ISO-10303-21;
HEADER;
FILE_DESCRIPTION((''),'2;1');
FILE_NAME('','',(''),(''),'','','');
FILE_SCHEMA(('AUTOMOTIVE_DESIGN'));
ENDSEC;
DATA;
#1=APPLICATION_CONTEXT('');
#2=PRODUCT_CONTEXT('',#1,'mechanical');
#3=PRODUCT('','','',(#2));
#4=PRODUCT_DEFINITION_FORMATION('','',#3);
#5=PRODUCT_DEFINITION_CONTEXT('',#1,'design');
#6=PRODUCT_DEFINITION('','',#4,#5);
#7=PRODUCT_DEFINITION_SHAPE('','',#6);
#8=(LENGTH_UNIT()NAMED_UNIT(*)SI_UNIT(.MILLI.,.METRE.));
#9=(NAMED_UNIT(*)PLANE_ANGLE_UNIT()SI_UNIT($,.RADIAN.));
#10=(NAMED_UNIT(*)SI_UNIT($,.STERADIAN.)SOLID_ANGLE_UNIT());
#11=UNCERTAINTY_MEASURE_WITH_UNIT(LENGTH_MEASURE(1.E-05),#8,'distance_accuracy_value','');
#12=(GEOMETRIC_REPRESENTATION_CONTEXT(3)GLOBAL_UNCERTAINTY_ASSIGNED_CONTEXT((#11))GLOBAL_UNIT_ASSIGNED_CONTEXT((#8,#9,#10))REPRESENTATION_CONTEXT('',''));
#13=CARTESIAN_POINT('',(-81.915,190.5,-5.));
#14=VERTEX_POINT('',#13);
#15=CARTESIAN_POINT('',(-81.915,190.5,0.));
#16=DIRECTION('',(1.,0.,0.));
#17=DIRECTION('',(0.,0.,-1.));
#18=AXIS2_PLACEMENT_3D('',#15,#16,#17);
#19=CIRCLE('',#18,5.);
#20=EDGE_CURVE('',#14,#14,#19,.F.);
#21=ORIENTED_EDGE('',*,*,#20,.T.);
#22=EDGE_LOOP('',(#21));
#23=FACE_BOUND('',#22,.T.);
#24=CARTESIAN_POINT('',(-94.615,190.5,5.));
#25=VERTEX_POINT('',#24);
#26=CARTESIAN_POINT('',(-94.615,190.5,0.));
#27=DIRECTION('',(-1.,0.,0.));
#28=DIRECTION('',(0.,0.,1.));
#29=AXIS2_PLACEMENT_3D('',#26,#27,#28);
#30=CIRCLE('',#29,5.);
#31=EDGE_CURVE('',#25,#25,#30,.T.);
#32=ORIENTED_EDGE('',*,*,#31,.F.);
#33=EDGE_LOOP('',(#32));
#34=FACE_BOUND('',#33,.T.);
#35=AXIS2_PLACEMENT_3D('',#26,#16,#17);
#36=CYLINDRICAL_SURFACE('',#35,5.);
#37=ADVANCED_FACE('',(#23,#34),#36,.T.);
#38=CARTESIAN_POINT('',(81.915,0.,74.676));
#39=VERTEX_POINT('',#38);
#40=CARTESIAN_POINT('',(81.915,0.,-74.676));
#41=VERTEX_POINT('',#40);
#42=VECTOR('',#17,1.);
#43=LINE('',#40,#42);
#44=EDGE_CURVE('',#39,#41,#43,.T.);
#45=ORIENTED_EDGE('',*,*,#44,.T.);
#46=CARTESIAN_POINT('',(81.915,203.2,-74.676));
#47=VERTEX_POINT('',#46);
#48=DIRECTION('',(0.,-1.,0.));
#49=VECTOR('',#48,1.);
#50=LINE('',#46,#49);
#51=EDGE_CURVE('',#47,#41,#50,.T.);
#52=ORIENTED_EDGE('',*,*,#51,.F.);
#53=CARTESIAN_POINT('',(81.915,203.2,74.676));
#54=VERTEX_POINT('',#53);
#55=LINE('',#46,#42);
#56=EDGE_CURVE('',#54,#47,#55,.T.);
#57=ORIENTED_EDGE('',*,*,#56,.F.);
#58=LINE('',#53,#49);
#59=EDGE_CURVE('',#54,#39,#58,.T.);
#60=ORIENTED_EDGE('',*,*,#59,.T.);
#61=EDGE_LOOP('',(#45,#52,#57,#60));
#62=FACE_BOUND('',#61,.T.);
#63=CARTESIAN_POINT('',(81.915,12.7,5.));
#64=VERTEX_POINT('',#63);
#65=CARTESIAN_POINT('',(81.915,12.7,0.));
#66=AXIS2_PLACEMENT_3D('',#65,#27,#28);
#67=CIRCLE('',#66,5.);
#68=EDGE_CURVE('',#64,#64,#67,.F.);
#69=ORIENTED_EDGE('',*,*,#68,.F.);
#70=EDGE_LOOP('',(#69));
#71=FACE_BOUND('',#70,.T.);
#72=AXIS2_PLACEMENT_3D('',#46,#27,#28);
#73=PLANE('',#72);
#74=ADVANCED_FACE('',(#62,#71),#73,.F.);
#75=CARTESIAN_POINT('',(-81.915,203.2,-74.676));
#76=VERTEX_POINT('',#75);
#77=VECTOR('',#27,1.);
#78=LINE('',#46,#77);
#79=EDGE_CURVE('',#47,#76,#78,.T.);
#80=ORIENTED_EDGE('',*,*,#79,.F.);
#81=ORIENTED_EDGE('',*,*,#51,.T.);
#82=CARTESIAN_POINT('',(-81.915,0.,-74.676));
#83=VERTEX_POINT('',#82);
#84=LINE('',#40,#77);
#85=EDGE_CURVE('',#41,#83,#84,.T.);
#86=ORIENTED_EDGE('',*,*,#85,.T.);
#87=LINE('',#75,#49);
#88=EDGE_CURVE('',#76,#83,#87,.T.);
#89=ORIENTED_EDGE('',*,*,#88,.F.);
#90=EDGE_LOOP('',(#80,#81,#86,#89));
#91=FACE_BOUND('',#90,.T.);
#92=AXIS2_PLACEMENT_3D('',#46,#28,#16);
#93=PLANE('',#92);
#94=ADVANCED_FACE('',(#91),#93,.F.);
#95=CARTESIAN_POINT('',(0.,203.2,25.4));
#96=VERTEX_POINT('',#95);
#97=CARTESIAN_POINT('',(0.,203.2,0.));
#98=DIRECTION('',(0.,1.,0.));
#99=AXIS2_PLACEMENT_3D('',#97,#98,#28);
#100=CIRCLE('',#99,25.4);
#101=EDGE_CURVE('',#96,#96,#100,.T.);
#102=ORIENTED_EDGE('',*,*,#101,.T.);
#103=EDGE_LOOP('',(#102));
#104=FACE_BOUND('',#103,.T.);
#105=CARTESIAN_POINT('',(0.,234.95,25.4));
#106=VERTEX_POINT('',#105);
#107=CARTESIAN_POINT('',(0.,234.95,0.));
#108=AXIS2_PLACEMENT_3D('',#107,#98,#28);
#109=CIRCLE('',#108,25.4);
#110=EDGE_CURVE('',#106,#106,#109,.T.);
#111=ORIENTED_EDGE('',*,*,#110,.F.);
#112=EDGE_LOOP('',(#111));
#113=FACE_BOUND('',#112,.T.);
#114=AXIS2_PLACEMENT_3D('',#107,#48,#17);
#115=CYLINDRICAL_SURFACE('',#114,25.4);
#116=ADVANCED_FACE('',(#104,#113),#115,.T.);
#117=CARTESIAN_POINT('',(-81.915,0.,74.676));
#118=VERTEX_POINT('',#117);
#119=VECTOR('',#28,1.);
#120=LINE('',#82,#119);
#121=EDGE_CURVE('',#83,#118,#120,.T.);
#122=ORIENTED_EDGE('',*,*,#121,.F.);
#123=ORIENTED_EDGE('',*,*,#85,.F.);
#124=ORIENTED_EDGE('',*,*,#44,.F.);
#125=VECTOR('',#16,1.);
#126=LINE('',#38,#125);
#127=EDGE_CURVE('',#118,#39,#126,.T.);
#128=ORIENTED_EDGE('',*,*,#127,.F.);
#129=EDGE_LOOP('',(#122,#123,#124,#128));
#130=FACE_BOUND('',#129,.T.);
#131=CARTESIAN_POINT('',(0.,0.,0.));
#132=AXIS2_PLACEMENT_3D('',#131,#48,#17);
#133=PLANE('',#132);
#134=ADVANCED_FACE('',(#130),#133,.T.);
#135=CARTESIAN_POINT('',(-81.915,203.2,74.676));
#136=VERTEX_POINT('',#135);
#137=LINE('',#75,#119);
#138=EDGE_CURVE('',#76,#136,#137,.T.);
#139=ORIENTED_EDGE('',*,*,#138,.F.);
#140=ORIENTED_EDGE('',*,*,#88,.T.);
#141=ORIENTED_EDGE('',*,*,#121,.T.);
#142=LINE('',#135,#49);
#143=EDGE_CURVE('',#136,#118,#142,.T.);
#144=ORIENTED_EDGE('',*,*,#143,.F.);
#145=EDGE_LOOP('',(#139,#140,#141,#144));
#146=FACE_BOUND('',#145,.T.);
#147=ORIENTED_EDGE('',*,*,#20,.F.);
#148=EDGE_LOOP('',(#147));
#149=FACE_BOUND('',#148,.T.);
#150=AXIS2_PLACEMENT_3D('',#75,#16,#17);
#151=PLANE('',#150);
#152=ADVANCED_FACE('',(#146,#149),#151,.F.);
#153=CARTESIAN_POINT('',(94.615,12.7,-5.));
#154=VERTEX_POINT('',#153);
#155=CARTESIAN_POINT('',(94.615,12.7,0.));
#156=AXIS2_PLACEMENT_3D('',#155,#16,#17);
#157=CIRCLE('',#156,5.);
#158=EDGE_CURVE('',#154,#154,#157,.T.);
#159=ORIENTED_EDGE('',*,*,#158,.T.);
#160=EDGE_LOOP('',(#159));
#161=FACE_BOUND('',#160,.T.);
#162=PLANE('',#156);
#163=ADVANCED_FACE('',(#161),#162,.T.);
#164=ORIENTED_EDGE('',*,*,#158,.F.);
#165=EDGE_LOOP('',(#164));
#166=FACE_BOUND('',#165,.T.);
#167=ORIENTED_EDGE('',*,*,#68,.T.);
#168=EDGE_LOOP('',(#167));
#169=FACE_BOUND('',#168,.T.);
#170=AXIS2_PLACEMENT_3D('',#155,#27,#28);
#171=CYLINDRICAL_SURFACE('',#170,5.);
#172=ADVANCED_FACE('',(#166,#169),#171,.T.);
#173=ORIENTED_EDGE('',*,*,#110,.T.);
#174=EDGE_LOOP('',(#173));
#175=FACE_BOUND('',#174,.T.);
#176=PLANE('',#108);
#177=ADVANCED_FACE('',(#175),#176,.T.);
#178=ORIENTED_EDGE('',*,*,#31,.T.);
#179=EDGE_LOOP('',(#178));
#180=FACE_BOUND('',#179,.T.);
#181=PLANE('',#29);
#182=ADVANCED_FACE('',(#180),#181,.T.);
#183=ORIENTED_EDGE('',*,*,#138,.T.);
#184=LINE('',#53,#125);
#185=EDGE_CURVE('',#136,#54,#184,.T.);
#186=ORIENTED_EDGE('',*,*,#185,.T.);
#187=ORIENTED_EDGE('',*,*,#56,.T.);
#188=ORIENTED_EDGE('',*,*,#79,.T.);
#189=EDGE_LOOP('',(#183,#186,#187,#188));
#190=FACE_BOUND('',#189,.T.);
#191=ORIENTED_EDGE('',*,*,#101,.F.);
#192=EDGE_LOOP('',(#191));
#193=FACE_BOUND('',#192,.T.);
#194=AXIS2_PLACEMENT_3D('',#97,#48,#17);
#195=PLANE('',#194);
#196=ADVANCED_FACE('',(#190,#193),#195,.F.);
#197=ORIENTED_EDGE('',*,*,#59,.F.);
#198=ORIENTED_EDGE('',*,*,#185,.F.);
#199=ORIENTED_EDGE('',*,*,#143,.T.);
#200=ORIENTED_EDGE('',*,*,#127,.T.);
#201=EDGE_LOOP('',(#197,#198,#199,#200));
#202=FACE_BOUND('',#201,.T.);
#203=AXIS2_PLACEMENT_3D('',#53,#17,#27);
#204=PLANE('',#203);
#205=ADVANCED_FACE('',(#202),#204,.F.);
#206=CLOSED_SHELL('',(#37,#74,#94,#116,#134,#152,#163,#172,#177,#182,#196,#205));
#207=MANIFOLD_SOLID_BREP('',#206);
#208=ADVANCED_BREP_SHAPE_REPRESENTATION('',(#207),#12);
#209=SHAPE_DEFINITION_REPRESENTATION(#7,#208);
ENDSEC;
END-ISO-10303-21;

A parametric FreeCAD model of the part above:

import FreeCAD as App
import Part
import Sketcher
Q = App.Units.Quantity


def add_polygon(sketch, points):
    """Adds a closed chain of lines whose ends are joined by coincident constraints."""
    first, n = sketch.GeometryCount, len(points)
    for a, b in zip(points, points[1:] + points[:1]):
        sketch.addGeometry(Part.LineSegment(App.Vector(*a, 0), App.Vector(*b, 0)), False)
    for i in range(n):
        sketch.addConstraint(Sketcher.Constraint("Coincident", first + i, 2, first + (i + 1) % n, 1))

doc = App.newDocument("Part")
body = doc.addObject("PartDesign::Body", "Body")

sketch1 = doc.addObject("Sketcher::SketchObject", "Sketch")
body.addObject(sketch1)
sketch1.AttachmentSupport = (doc.XZ_Plane, [""])
sketch1.MapMode = "FlatFace"
add_polygon(sketch1, [(-82, -75), (-82, 75), (82, 75), (82, -75)])
sketch1.addConstraint([
    Sketcher.Constraint("Vertical", 0),
    Sketcher.Constraint("Horizontal", 1),
    Sketcher.Constraint("Vertical", 2),
    Sketcher.Constraint("Horizontal", 3),
    Sketcher.Constraint("Symmetric", 0, 2, 2, 2, -1, 1),
    Sketcher.Constraint("DistanceX", 1, 1, 1, 2, Q("6.45 in")),
    Sketcher.Constraint("DistanceY", 0, 1, 0, 2, Q("5.88 in")),
])
pad1 = doc.addObject("PartDesign::Pad", "Pad")
body.addObject(pad1)
pad1.Profile = sketch1
pad1.Length = Q("8 in")
pad1.Reversed = True

sketch2 = doc.addObject("Sketcher::SketchObject", "Sketch001")
body.addObject(sketch2)
sketch2.AttachmentSupport = (doc.XZ_Plane, [""])
sketch2.MapMode = "FlatFace"
sketch2.AttachmentOffset = App.Placement(App.Vector(0, 0, -8 * 25.4), App.Rotation())
sketch2.addGeometry(Part.Circle(App.Vector(0, 0, 0), App.Vector(0, 0, 1), 25), False)
sketch2.addConstraint([
    Sketcher.Constraint("Coincident", 0, 3, -1, 1),
    Sketcher.Constraint("Diameter", 0, Q("2 in")),
])
pad2 = doc.addObject("PartDesign::Pad", "Pad001")
body.addObject(pad2)
pad2.Profile = sketch2
pad2.Length = Q("1.25 in")
pad2.Reversed = True

sketch3 = doc.addObject("Sketcher::SketchObject", "Sketch002")
body.addObject(sketch3)
sketch3.AttachmentSupport = (doc.YZ_Plane, [""])
sketch3.MapMode = "FlatFace"
sketch3.AttachmentOffset = App.Placement(App.Vector(0, 0, -3.225 * 25.4), App.Rotation())
sketch3.addGeometry(Part.Circle(App.Vector(190, 0, 0), App.Vector(0, 0, 1), 5), False)
sketch3.addConstraint([
    Sketcher.Constraint("PointOnObject", 0, 3, -1),
    Sketcher.Constraint("DistanceX", -1, 1, 0, 3, Q("7.5 in")),
    Sketcher.Constraint("Diameter", 0, 10.0),
])
pad3 = doc.addObject("PartDesign::Pad", "Pad002")
body.addObject(pad3)
pad3.Profile = sketch3
pad3.Length = Q("0.5 in")
pad3.Reversed = True

sketch4 = doc.addObject("Sketcher::SketchObject", "Sketch003")
body.addObject(sketch4)
sketch4.AttachmentSupport = (doc.YZ_Plane, [""])
sketch4.MapMode = "FlatFace"
sketch4.AttachmentOffset = App.Placement(App.Vector(0, 0, 3.225 * 25.4), App.Rotation())
sketch4.addGeometry(Part.Circle(App.Vector(13, 0, 0), App.Vector(0, 0, 1), 5), False)
sketch4.addConstraint([
    Sketcher.Constraint("PointOnObject", 0, 3, -1),
    Sketcher.Constraint("DistanceX", -1, 1, 0, 3, Q("0.5 in")),
    Sketcher.Constraint("Diameter", 0, 10.0),
])
pad4 = doc.addObject("PartDesign::Pad", "Pad003")
body.addObject(pad4)
pad4.Profile = sketch4
pad4.Length = Q("0.5 in")

doc.recompute()
